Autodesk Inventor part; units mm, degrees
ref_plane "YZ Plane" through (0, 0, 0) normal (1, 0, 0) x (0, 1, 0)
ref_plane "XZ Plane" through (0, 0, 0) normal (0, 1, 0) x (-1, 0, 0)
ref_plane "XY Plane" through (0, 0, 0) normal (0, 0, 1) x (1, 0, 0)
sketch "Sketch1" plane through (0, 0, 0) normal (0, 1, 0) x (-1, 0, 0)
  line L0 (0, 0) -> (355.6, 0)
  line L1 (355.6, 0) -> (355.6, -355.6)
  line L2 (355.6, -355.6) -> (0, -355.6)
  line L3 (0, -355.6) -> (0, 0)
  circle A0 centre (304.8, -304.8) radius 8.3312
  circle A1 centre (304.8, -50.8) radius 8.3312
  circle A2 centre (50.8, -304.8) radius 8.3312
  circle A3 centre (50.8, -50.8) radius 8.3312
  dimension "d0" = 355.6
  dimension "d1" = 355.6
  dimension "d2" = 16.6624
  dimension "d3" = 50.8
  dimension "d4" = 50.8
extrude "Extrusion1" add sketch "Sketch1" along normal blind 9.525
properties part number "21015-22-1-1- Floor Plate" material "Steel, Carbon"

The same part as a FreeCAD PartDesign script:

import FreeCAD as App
import Part
import Sketcher

V = App.Vector
Q = App.Units.Quantity

doc = App.newDocument("Part")
body = doc.addObject("PartDesign::Body", "Body")

sketch1 = body.newObject("Sketcher::SketchObject", "Sketch")
sketch1.AttachmentSupport = (doc.getObject("XZ_Plane"), [""])
sketch1.MapMode = "FlatFace"
sketch1.addGeometry([
    Part.LineSegment(V(-356, 0, 0), V(0, 0, 0)),
    Part.LineSegment(V(0, 0, 0), V(0, -356, 0)),
    Part.LineSegment(V(0, -356, 0), V(-356, -356, 0)),
    Part.LineSegment(V(-356, -356, 0), V(-356, 0, 0)),
    Part.Circle(V(-51, -305, 0), V(0, 0, 1), 8),
    Part.Circle(V(-305, -305, 0), V(0, 0, 1), 8),
    Part.Circle(V(-51, -51, 0), V(0, 0, 1), 8),
    Part.Circle(V(-305, -51, 0), V(0, 0, 1), 8),
], False)
sketch1.addConstraint([
    Sketcher.Constraint("Coincident", 0, 2, 1, 1),
    Sketcher.Constraint("Coincident", 1, 2, 2, 1),
    Sketcher.Constraint("Coincident", 2, 2, 3, 1),
    Sketcher.Constraint("Coincident", 3, 2, 0, 1),
    Sketcher.Constraint("Horizontal", 0),
    Sketcher.Constraint("Vertical", 1),
    Sketcher.Constraint("Horizontal", 2),
    Sketcher.Constraint("Vertical", 3),
    Sketcher.Constraint("Coincident", 0, 2, -1, 1),
    Sketcher.Constraint("Equal", 4, 5),
    Sketcher.Constraint("Equal", 5, 6),
    Sketcher.Constraint("Equal", 6, 7),
    Sketcher.Constraint("Horizontal", 4, 3, 5, 3),
    Sketcher.Constraint("Horizontal", 6, 3, 7, 3),
    Sketcher.Constraint("Vertical", 4, 3, 6, 3),
    Sketcher.Constraint("Vertical", 5, 3, 7, 3),
    Sketcher.Constraint("Equal", 2, 1),
    Sketcher.Constraint("DistanceX", 0, 1, 0, 2, Q("14 in")),
    Sketcher.Constraint("Diameter", 4, Q("0.656 in")),
    Sketcher.Constraint("DistanceX", 4, 3, -1, 1, Q("2 in")),
    Sketcher.Constraint("DistanceY", 6, 3, -1, 1, Q("2 in")),
    Sketcher.Constraint("DistanceY", 1, 2, 4, 3, Q("2 in")),
    Sketcher.Constraint("DistanceX", 2, 2, 5, 3, Q("2 in")),
])
pad1 = body.newObject("PartDesign::Pad", "Pad")
pad1.Profile = sketch1
pad1.Length = Q("0.375 in")
pad1.Reversed = True

doc.recompute()
